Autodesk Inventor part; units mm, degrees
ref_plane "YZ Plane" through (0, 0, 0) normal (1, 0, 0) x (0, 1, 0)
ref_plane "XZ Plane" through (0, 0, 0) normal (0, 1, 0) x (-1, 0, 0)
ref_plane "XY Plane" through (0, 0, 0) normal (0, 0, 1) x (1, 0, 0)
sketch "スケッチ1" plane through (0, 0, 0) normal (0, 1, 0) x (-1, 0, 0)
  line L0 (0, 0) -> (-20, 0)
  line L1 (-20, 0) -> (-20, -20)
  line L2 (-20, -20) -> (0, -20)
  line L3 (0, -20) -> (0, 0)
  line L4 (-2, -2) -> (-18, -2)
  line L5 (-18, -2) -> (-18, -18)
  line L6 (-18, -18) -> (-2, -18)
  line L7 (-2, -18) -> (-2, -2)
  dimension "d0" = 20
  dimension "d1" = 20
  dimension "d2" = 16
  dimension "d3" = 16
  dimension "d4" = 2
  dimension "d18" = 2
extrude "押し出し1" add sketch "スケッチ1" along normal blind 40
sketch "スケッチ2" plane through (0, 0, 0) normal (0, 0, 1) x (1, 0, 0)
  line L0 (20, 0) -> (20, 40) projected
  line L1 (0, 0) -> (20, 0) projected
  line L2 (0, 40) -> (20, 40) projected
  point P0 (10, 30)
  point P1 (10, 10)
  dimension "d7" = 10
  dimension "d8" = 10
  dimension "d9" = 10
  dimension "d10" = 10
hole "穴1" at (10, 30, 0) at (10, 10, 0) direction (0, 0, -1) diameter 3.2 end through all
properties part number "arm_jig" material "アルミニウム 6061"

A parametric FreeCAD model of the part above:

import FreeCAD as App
import Part
import Sketcher
Q = App.Units.Quantity


def add_polygon(sketch, points):
    """Adds a closed chain of lines whose ends are joined by coincident constraints."""
    first, n = sketch.GeometryCount, len(points)
    for a, b in zip(points, points[1:] + points[:1]):
        sketch.addGeometry(Part.LineSegment(App.Vector(*a, 0), App.Vector(*b, 0)), False)
    for i in range(n):
        sketch.addConstraint(Sketcher.Constraint("Coincident", first + i, 2, first + (i + 1) % n, 1))

doc = App.newDocument("Part")
body = doc.addObject("PartDesign::Body", "Body")

# Sketch on XZ plane
sketch1 = body.newObject("Sketcher::SketchObject", "Sketch")
sketch1.AttachmentSupport = (doc.getObject("XZ_Plane"), [""])
sketch1.MapMode = "FlatFace"
add_polygon(sketch1, [(0, -20), (0, 0), (20, 0), (20, -20)])  # lines 0-3
add_polygon(sketch1, [(18, -2), (2, -2), (2, -18), (18, -18)])  # lines 4-7
sketch1.addConstraint([
    Sketcher.Constraint("Vertical", 0),
    Sketcher.Constraint("Horizontal", 1),
    Sketcher.Constraint("Vertical", 2),
    Sketcher.Constraint("Horizontal", 3),
    Sketcher.Constraint("Horizontal", 4),
    Sketcher.Constraint("Vertical", 5),
    Sketcher.Constraint("Horizontal", 6),
    Sketcher.Constraint("Vertical", 7),
    Sketcher.Constraint("Coincident", 0, 2, -1, 1),
    Sketcher.Constraint("Equal", 3, 0),
    Sketcher.Constraint("Equal", 6, 5),
    Sketcher.Constraint("DistanceX", 1, 1, 1, 2, Q("20 mm")),
    Sketcher.Constraint("DistanceX", 4, 2, 4, 1, Q("16 mm")),
    Sketcher.Constraint("DistanceX", -1, 1, 4, 2, Q("2 mm")),
    Sketcher.Constraint("DistanceY", 4, 2, -1, 1, Q("2 mm")),
])
pad1 = body.newObject("PartDesign::Pad", "Pad")
pad1.Profile = sketch1
pad1.Length = 40
pad1.Reversed = True

# Sketch on XY plane
sketch2 = body.newObject("Sketcher::SketchObject", "Sketch001")
sketch2.AttachmentSupport = (doc.getObject("XY_Plane"), [""])
sketch2.MapMode = "FlatFace"
sketch2.addGeometry([
    Part.Circle(App.Vector(10, 30, 0), App.Vector(0, 0, 1), 1.6),
    Part.Circle(App.Vector(10, 10, 0), App.Vector(0, 0, 1), 1.6),
], False)
sketch2.addConstraint([
    Sketcher.Constraint("Equal", 0, 1),
    Sketcher.Constraint("Vertical", 0, 3, 1, 3),
    Sketcher.Constraint("Diameter", 0, Q("3.2 mm")),
    Sketcher.Constraint("DistanceX", -1, 1, 0, 3, Q("10 mm")),
    Sketcher.Constraint("DistanceY", -1, 1, 0, 3, Q("30 mm")),
    Sketcher.Constraint("DistanceY", -1, 1, 1, 3, Q("10 mm")),
])
doc.recompute()
hole = body.newObject("PartDesign::Hole", "Hole")
hole.Profile = sketch2
hole.ThreadType = "None"
hole.Diameter = 3.2
hole.DepthType = "ThroughAll"

doc.recompute()
